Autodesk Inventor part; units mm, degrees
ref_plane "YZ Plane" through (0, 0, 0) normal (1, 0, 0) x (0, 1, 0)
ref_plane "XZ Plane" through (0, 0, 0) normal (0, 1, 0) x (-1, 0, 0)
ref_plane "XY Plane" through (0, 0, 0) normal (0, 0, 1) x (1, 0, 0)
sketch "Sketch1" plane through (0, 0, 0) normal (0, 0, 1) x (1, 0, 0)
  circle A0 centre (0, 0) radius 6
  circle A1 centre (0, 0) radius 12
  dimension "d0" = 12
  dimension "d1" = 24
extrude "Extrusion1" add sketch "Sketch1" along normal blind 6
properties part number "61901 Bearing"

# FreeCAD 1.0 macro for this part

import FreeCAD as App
import Part
import Sketcher
from FreeCAD import Vector

doc = App.newDocument("Part")
body = doc.addObject("PartDesign::Body", "Body")

# Sketch on XY plane
sketch1 = doc.addObject("Sketcher::SketchObject", "Sketch")
body.addObject(sketch1)
sketch1.AttachmentSupport = (doc.XY_Plane, [""])
sketch1.MapMode = "FlatFace"
sketch1.addGeometry([
    Part.Circle(Vector(0, 0, 0), Vector(0, 0, 1), 12),
    Part.Circle(Vector(0, 0, 0), Vector(0, 0, 1), 6),
], False)
sketch1.addConstraint([
    Sketcher.Constraint("Coincident", 0, 3, -1, 1),
    Sketcher.Constraint("Coincident", 1, 3, -1, 1),
    Sketcher.Constraint("Diameter", 0, 24.0),
    Sketcher.Constraint("Diameter", 1, 12.0),
])
pad1 = doc.addObject("PartDesign::Pad", "Pad")
body.addObject(pad1)
pad1.Profile = sketch1
pad1.Length = 6

doc.recompute()
